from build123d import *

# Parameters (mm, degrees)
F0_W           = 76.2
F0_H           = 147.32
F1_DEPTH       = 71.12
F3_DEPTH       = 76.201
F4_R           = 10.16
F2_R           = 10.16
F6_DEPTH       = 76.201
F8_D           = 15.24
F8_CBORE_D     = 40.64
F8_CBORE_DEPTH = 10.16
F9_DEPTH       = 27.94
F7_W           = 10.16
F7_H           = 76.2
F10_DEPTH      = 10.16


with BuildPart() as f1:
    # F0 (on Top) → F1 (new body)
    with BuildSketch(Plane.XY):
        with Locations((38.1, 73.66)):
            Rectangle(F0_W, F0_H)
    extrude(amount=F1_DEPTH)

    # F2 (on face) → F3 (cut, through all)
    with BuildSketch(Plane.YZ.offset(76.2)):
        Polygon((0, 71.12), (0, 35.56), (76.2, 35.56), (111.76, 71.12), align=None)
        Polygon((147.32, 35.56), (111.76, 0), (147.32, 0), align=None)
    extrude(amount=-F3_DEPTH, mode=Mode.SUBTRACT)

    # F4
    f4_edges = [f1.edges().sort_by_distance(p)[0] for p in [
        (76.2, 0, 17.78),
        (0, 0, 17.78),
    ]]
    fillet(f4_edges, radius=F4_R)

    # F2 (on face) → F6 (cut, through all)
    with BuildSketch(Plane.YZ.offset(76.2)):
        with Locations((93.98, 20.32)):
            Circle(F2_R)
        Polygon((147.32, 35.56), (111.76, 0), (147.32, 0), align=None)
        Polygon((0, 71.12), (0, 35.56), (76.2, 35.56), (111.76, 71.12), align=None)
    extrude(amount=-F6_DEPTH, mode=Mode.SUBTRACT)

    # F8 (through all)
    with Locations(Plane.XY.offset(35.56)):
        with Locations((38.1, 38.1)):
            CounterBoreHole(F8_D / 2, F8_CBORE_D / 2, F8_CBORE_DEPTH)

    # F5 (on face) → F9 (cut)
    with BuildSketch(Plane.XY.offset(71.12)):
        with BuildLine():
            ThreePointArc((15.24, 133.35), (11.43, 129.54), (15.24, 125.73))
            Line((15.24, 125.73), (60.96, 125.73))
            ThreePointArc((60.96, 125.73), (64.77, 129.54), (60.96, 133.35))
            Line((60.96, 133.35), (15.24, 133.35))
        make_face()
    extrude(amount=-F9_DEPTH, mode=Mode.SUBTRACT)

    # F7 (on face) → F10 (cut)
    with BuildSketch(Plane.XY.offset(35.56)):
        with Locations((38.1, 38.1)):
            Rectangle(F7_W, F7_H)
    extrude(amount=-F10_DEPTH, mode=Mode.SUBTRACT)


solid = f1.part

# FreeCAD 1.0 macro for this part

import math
import FreeCAD as App
import Part
import Sketcher
from FreeCAD import Vector
Q = App.Units.Quantity


def edges_at(feature, points):
    """Names of the edges that pass closest to the given points."""
    edges = feature.Shape.Edges
    near = lambda p: min(range(len(edges)), key=lambda i: edges[i].distToShape(Part.Vertex(*p))[0])
    return sorted({f"Edge{near(p) + 1}" for p in points})

doc = App.newDocument("Part")
body = doc.addObject("PartDesign::Body", "Body")

# Sketch on XY plane
sketch1 = body.newObject("Sketcher::SketchObject", "Sketch")
sketch1.AttachmentSupport = (doc.getObject("XY_Plane"), [""])
sketch1.MapMode = "FlatFace"
sketch1.addGeometry(Part.LineSegment(Vector(0, 147, 0), Vector(0, 0, 0)), False)
sketch1.addGeometry(Part.LineSegment(Vector(0, 0, 0), Vector(76, 0, 0)), False)
sketch1.addGeometry(Part.LineSegment(Vector(76, 0, 0), Vector(76, 147, 0)), False)
sketch1.addGeometry(Part.LineSegment(Vector(76, 147, 0), Vector(0, 147, 0)), False)
sketch1.addConstraint(Sketcher.Constraint("Coincident", 0, 2, 1, 1))
sketch1.addConstraint(Sketcher.Constraint("Coincident", 1, 2, 2, 1))
sketch1.addConstraint(Sketcher.Constraint("Coincident", 2, 2, 3, 1))
sketch1.addConstraint(Sketcher.Constraint("Coincident", 3, 2, 0, 1))
sketch1.addConstraint(Sketcher.Constraint("Vertical", 0))
sketch1.addConstraint(Sketcher.Constraint("Horizontal", 1))
sketch1.addConstraint(Sketcher.Constraint("Vertical", 2))
sketch1.addConstraint(Sketcher.Constraint("Horizontal", 3))
sketch1.addConstraint(Sketcher.Constraint("Coincident", 0, 2, -1, 1))
sketch1.addConstraint(Sketcher.Constraint("DistanceX", 1, 1, 1, 2, Q("3 in")))
sketch1.addConstraint(Sketcher.Constraint("DistanceY", 0, 2, 0, 1, Q("5.8 in")))
pad1 = body.newObject("PartDesign::Pad", "Pad")
pad1.Profile = sketch1
pad1.Length = Q("2.8 in")

# Sketch on YZ plane
sketch2 = body.newObject("Sketcher::SketchObject", "Sketch001")
sketch2.AttachmentSupport = (doc.getObject("YZ_Plane"), [""])
sketch2.MapMode = "FlatFace"
sketch2.AttachmentOffset = App.Placement(Vector(0, 0, 3 * 25.4), App.Rotation())
sketch2.addGeometry(Part.LineSegment(Vector(0, 71, 0), Vector(0, 36, 0)), False)
sketch2.addGeometry(Part.LineSegment(Vector(0, 36, 0), Vector(76, 36, 0)), False)
sketch2.addGeometry(Part.LineSegment(Vector(76, 36, 0), Vector(112, 71, 0)), False)
sketch2.addGeometry(Part.LineSegment(Vector(112, 71, 0), Vector(0, 71, 0)), False)
sketch2.addGeometry(Part.LineSegment(Vector(147, 36, 0), Vector(112, 0, 0)), False)
sketch2.addGeometry(Part.LineSegment(Vector(112, 0, 0), Vector(147, 0, 0)), False)
sketch2.addGeometry(Part.LineSegment(Vector(147, 0, 0), Vector(147, 36, 0)), False)
sketch2.addConstraint(Sketcher.Constraint("Coincident", 0, 2, 1, 1))
sketch2.addConstraint(Sketcher.Constraint("Coincident", 1, 2, 2, 1))
sketch2.addConstraint(Sketcher.Constraint("Coincident", 2, 2, 3, 1))
sketch2.addConstraint(Sketcher.Constraint("Coincident", 3, 2, 0, 1))
sketch2.addConstraint(Sketcher.Constraint("Coincident", 4, 2, 5, 1))
sketch2.addConstraint(Sketcher.Constraint("Coincident", 5, 2, 6, 1))
sketch2.addConstraint(Sketcher.Constraint("Coincident", 6, 2, 4, 1))
sketch2.addConstraint(Sketcher.Constraint("Vertical", 0))
sketch2.addConstraint(Sketcher.Constraint("Horizontal", 1))
sketch2.addConstraint(Sketcher.Constraint("Horizontal", 3))
sketch2.addConstraint(Sketcher.Constraint("Horizontal", 5))
sketch2.addConstraint(Sketcher.Constraint("Vertical", 6))
sketch2.addConstraint(Sketcher.Constraint("PointOnObject", 0, 2, -2))
sketch2.addConstraint(Sketcher.Constraint("PointOnObject", 4, 2, -1))
sketch2.addConstraint(Sketcher.Constraint("Parallel", 2, 4))
sketch2.addConstraint(Sketcher.Constraint("Horizontal", 1, 2, 6, 2))
sketch2.addConstraint(Sketcher.Constraint("Vertical", 2, 2, 4, 2))
sketch2.addConstraint(Sketcher.Constraint("Equal", 5, 0))
sketch2.addConstraint(Sketcher.Constraint("Equal", 0, 6))
sketch2.addConstraint(Sketcher.Constraint("DistanceX", 1, 1, 1, 2, Q("3 in")))
sketch2.addConstraint(Sketcher.Constraint("DistanceX", 3, 2, 3, 1, Q("4.4 in")))
pocket1 = body.newObject("PartDesign::Pocket", "Pocket")
pocket1.Profile = sketch2
pocket1.Type = "ThroughAll"
doc.recompute()

fillet = body.newObject("PartDesign::Fillet", "Fillet")
fillet.Base = (pocket1, edges_at(pocket1, [(76.2, 0, 17.78), (0, 0, 17.78)]))
fillet.Radius = Q("0.4 in")

# Sketch on YZ plane
sketch3 = body.newObject("Sketcher::SketchObject", "Sketch002")
sketch3.AttachmentSupport = (doc.getObject("YZ_Plane"), [""])
sketch3.MapMode = "FlatFace"
sketch3.AttachmentOffset = App.Placement(Vector(0, 0, 3 * 25.4), App.Rotation())
sketch3.addGeometry(Part.Circle(Vector(94, 20, 0), Vector(0, 0, 1), 10), False)
sketch3.addGeometry(Part.LineSegment(Vector(147, 36, 0), Vector(112, 0, 0)), False)
sketch3.addGeometry(Part.LineSegment(Vector(112, 0, 0), Vector(147, 0, 0)), False)
sketch3.addGeometry(Part.LineSegment(Vector(147, 0, 0), Vector(147, 36, 0)), False)
sketch3.addGeometry(Part.LineSegment(Vector(0, 71, 0), Vector(0, 36, 0)), False)
sketch3.addGeometry(Part.LineSegment(Vector(0, 36, 0), Vector(76, 36, 0)), False)
sketch3.addGeometry(Part.LineSegment(Vector(76, 36, 0), Vector(112, 71, 0)), False)
sketch3.addGeometry(Part.LineSegment(Vector(112, 71, 0), Vector(0, 71, 0)), False)
sketch3.addConstraint(Sketcher.Constraint("Coincident", 1, 2, 2, 1))
sketch3.addConstraint(Sketcher.Constraint("Coincident", 2, 2, 3, 1))
sketch3.addConstraint(Sketcher.Constraint("Coincident", 3, 2, 1, 1))
sketch3.addConstraint(Sketcher.Constraint("Coincident", 4, 2, 5, 1))
sketch3.addConstraint(Sketcher.Constraint("Coincident", 5, 2, 6, 1))
sketch3.addConstraint(Sketcher.Constraint("Coincident", 6, 2, 7, 1))
sketch3.addConstraint(Sketcher.Constraint("Coincident", 7, 2, 4, 1))
sketch3.addConstraint(Sketcher.Constraint("Horizontal", 2))
sketch3.addConstraint(Sketcher.Constraint("Vertical", 3))
sketch3.addConstraint(Sketcher.Constraint("Vertical", 4))
sketch3.addConstraint(Sketcher.Constraint("Horizontal", 5))
sketch3.addConstraint(Sketcher.Constraint("Horizontal", 7))
sketch3.addConstraint(Sketcher.Constraint("PointOnObject", 1, 2, -1))
sketch3.addConstraint(Sketcher.Constraint("PointOnObject", 4, 2, -2))
sketch3.addConstraint(Sketcher.Constraint("Parallel", 1, 6))
sketch3.addConstraint(Sketcher.Constraint("Horizontal", 3, 2, 4, 2))
sketch3.addConstraint(Sketcher.Constraint("Vertical", 1, 2, 6, 2))
sketch3.addConstraint(Sketcher.Constraint("Equal", 2, 3))
sketch3.addConstraint(Sketcher.Constraint("Equal", 3, 4))
sketch3.addConstraint(Sketcher.Constraint("Diameter", 0, Q("0.8 in")))
sketch3.addConstraint(Sketcher.Constraint("DistanceX", 5, 1, 5, 2, Q("3 in")))
sketch3.addConstraint(Sketcher.Constraint("DistanceX", 2, 1, 2, 2, Q("1.4 in")))
sketch3.addConstraint(Sketcher.Constraint("DistanceY", 0, 3, 6, 2, Q("2 in")))
sketch3.addConstraint(Sketcher.Constraint("DistanceX", -1, 1, 0, 3, Q("3.7 in")))
pocket2 = body.newObject("PartDesign::Pocket", "Pocket001")
pocket2.Profile = sketch3
pocket2.Type = "ThroughAll"

# Sketch on XY plane
sketch4 = body.newObject("Sketcher::SketchObject", "Sketch003")
sketch4.AttachmentSupport = (doc.getObject("XY_Plane"), [""])
sketch4.MapMode = "FlatFace"
sketch4.AttachmentOffset = App.Placement(Vector(0, 0, 1.4 * 25.4), App.Rotation())
sketch4.addGeometry(Part.Circle(Vector(38, 38, 0), Vector(0, 0, 1), 8), False)
sketch4.addConstraint(Sketcher.Constraint("Diameter", 0, Q("0.6 in")))
sketch4.addConstraint(Sketcher.Constraint("DistanceX", -1, 1, 0, 3, Q("1.5 in")))
sketch4.addConstraint(Sketcher.Constraint("DistanceY", -1, 1, 0, 3, Q("1.5 in")))
doc.recompute()
hole = body.newObject("PartDesign::Hole", "Hole")
hole.Profile = sketch4
hole.ThreadType = "None"
hole.Diameter = Q("0.6 in")
hole.DepthType = "ThroughAll"
hole.HoleCutType = "Counterbore"
hole.HoleCutDiameter = Q("1.6 in")
hole.HoleCutDepth = Q("0.4 in")

# Sketch on XY plane
sketch5 = body.newObject("Sketcher::SketchObject", "Sketch004")
sketch5.AttachmentSupport = (doc.getObject("XY_Plane"), [""])
sketch5.MapMode = "FlatFace"
sketch5.AttachmentOffset = App.Placement(Vector(0, 0, 2.8 * 25.4), App.Rotation())
sketch5.addGeometry(Part.ArcOfCircle(Part.Circle(Vector(15.2, 129.5, 0), Vector(0, 0, 1), 3.8), math.radians(90), math.radians(270)), False)
sketch5.addGeometry(Part.LineSegment(Vector(15.2, 125.7, 0), Vector(61, 125.7, 0)), False)
sketch5.addGeometry(Part.ArcOfCircle(Part.Circle(Vector(61, 129.5, 0), Vector(0, 0, 1), 3.8), math.radians(-90), math.radians(90)), False)
sketch5.addGeometry(Part.LineSegment(Vector(61, 133.3, 0), Vector(15.2, 133.3, 0)), False)
sketch5.addConstraint(Sketcher.Constraint("Tangent", 0, 2, 1, 1))
sketch5.addConstraint(Sketcher.Constraint("Tangent", 1, 2, 2, 1))
sketch5.addConstraint(Sketcher.Constraint("Tangent", 2, 2, 3, 1))
sketch5.addConstraint(Sketcher.Constraint("Tangent", 3, 2, 0, 1))
sketch5.addConstraint(Sketcher.Constraint("Horizontal", 1))
sketch5.addConstraint(Sketcher.Constraint("Horizontal", 3))
sketch5.addConstraint(Sketcher.Constraint("Radius", 0, Q("0.15 in")))
sketch5.addConstraint(Sketcher.Constraint("DistanceX", 1, 1, 1, 2, Q("1.8 in")))
sketch5.addConstraint(Sketcher.Constraint("DistanceX", -1, 1, 0, 3, Q("0.6 in")))
sketch5.addConstraint(Sketcher.Constraint("DistanceY", -1, 1, 0, 3, Q("5.1 in")))
pocket3 = body.newObject("PartDesign::Pocket", "Pocket002")
pocket3.Profile = sketch5
pocket3.Length = Q("1.1 in")

# Sketch on XY plane
sketch6 = body.newObject("Sketcher::SketchObject", "Sketch005")
sketch6.AttachmentSupport = (doc.getObject("XY_Plane"), [""])
sketch6.MapMode = "FlatFace"
sketch6.AttachmentOffset = App.Placement(Vector(0, 0, 1.4 * 25.4), App.Rotation())
sketch6.addGeometry(Part.LineSegment(Vector(33, 76, 0), Vector(33, 0, 0)), False)
sketch6.addGeometry(Part.LineSegment(Vector(33, 0, 0), Vector(43, 0, 0)), False)
sketch6.addGeometry(Part.LineSegment(Vector(43, 0, 0), Vector(43, 76, 0)), False)
sketch6.addGeometry(Part.LineSegment(Vector(43, 76, 0), Vector(33, 76, 0)), False)
sketch6.addConstraint(Sketcher.Constraint("Coincident", 0, 2, 1, 1))
sketch6.addConstraint(Sketcher.Constraint("Coincident", 1, 2, 2, 1))
sketch6.addConstraint(Sketcher.Constraint("Coincident", 2, 2, 3, 1))
sketch6.addConstraint(Sketcher.Constraint("Coincident", 3, 2, 0, 1))
sketch6.addConstraint(Sketcher.Constraint("Vertical", 0))
sketch6.addConstraint(Sketcher.Constraint("Horizontal", 1))
sketch6.addConstraint(Sketcher.Constraint("Vertical", 2))
sketch6.addConstraint(Sketcher.Constraint("Horizontal", 3))
sketch6.addConstraint(Sketcher.Constraint("PointOnObject", 0, 2, -1))
sketch6.addConstraint(Sketcher.Constraint("DistanceY", 0, 2, 0, 1, Q("3 in")))
sketch6.addConstraint(Sketcher.Constraint("DistanceX", 1, 1, 1, 2, Q("0.4 in")))
sketch6.addConstraint(Sketcher.Constraint("DistanceX", -1, 1, 0, 2, Q("1.3 in")))
pocket4 = body.newObject("PartDesign::Pocket", "Pocket003")
pocket4.Profile = sketch6
pocket4.Length = Q("0.4 in")

doc.recompute()
